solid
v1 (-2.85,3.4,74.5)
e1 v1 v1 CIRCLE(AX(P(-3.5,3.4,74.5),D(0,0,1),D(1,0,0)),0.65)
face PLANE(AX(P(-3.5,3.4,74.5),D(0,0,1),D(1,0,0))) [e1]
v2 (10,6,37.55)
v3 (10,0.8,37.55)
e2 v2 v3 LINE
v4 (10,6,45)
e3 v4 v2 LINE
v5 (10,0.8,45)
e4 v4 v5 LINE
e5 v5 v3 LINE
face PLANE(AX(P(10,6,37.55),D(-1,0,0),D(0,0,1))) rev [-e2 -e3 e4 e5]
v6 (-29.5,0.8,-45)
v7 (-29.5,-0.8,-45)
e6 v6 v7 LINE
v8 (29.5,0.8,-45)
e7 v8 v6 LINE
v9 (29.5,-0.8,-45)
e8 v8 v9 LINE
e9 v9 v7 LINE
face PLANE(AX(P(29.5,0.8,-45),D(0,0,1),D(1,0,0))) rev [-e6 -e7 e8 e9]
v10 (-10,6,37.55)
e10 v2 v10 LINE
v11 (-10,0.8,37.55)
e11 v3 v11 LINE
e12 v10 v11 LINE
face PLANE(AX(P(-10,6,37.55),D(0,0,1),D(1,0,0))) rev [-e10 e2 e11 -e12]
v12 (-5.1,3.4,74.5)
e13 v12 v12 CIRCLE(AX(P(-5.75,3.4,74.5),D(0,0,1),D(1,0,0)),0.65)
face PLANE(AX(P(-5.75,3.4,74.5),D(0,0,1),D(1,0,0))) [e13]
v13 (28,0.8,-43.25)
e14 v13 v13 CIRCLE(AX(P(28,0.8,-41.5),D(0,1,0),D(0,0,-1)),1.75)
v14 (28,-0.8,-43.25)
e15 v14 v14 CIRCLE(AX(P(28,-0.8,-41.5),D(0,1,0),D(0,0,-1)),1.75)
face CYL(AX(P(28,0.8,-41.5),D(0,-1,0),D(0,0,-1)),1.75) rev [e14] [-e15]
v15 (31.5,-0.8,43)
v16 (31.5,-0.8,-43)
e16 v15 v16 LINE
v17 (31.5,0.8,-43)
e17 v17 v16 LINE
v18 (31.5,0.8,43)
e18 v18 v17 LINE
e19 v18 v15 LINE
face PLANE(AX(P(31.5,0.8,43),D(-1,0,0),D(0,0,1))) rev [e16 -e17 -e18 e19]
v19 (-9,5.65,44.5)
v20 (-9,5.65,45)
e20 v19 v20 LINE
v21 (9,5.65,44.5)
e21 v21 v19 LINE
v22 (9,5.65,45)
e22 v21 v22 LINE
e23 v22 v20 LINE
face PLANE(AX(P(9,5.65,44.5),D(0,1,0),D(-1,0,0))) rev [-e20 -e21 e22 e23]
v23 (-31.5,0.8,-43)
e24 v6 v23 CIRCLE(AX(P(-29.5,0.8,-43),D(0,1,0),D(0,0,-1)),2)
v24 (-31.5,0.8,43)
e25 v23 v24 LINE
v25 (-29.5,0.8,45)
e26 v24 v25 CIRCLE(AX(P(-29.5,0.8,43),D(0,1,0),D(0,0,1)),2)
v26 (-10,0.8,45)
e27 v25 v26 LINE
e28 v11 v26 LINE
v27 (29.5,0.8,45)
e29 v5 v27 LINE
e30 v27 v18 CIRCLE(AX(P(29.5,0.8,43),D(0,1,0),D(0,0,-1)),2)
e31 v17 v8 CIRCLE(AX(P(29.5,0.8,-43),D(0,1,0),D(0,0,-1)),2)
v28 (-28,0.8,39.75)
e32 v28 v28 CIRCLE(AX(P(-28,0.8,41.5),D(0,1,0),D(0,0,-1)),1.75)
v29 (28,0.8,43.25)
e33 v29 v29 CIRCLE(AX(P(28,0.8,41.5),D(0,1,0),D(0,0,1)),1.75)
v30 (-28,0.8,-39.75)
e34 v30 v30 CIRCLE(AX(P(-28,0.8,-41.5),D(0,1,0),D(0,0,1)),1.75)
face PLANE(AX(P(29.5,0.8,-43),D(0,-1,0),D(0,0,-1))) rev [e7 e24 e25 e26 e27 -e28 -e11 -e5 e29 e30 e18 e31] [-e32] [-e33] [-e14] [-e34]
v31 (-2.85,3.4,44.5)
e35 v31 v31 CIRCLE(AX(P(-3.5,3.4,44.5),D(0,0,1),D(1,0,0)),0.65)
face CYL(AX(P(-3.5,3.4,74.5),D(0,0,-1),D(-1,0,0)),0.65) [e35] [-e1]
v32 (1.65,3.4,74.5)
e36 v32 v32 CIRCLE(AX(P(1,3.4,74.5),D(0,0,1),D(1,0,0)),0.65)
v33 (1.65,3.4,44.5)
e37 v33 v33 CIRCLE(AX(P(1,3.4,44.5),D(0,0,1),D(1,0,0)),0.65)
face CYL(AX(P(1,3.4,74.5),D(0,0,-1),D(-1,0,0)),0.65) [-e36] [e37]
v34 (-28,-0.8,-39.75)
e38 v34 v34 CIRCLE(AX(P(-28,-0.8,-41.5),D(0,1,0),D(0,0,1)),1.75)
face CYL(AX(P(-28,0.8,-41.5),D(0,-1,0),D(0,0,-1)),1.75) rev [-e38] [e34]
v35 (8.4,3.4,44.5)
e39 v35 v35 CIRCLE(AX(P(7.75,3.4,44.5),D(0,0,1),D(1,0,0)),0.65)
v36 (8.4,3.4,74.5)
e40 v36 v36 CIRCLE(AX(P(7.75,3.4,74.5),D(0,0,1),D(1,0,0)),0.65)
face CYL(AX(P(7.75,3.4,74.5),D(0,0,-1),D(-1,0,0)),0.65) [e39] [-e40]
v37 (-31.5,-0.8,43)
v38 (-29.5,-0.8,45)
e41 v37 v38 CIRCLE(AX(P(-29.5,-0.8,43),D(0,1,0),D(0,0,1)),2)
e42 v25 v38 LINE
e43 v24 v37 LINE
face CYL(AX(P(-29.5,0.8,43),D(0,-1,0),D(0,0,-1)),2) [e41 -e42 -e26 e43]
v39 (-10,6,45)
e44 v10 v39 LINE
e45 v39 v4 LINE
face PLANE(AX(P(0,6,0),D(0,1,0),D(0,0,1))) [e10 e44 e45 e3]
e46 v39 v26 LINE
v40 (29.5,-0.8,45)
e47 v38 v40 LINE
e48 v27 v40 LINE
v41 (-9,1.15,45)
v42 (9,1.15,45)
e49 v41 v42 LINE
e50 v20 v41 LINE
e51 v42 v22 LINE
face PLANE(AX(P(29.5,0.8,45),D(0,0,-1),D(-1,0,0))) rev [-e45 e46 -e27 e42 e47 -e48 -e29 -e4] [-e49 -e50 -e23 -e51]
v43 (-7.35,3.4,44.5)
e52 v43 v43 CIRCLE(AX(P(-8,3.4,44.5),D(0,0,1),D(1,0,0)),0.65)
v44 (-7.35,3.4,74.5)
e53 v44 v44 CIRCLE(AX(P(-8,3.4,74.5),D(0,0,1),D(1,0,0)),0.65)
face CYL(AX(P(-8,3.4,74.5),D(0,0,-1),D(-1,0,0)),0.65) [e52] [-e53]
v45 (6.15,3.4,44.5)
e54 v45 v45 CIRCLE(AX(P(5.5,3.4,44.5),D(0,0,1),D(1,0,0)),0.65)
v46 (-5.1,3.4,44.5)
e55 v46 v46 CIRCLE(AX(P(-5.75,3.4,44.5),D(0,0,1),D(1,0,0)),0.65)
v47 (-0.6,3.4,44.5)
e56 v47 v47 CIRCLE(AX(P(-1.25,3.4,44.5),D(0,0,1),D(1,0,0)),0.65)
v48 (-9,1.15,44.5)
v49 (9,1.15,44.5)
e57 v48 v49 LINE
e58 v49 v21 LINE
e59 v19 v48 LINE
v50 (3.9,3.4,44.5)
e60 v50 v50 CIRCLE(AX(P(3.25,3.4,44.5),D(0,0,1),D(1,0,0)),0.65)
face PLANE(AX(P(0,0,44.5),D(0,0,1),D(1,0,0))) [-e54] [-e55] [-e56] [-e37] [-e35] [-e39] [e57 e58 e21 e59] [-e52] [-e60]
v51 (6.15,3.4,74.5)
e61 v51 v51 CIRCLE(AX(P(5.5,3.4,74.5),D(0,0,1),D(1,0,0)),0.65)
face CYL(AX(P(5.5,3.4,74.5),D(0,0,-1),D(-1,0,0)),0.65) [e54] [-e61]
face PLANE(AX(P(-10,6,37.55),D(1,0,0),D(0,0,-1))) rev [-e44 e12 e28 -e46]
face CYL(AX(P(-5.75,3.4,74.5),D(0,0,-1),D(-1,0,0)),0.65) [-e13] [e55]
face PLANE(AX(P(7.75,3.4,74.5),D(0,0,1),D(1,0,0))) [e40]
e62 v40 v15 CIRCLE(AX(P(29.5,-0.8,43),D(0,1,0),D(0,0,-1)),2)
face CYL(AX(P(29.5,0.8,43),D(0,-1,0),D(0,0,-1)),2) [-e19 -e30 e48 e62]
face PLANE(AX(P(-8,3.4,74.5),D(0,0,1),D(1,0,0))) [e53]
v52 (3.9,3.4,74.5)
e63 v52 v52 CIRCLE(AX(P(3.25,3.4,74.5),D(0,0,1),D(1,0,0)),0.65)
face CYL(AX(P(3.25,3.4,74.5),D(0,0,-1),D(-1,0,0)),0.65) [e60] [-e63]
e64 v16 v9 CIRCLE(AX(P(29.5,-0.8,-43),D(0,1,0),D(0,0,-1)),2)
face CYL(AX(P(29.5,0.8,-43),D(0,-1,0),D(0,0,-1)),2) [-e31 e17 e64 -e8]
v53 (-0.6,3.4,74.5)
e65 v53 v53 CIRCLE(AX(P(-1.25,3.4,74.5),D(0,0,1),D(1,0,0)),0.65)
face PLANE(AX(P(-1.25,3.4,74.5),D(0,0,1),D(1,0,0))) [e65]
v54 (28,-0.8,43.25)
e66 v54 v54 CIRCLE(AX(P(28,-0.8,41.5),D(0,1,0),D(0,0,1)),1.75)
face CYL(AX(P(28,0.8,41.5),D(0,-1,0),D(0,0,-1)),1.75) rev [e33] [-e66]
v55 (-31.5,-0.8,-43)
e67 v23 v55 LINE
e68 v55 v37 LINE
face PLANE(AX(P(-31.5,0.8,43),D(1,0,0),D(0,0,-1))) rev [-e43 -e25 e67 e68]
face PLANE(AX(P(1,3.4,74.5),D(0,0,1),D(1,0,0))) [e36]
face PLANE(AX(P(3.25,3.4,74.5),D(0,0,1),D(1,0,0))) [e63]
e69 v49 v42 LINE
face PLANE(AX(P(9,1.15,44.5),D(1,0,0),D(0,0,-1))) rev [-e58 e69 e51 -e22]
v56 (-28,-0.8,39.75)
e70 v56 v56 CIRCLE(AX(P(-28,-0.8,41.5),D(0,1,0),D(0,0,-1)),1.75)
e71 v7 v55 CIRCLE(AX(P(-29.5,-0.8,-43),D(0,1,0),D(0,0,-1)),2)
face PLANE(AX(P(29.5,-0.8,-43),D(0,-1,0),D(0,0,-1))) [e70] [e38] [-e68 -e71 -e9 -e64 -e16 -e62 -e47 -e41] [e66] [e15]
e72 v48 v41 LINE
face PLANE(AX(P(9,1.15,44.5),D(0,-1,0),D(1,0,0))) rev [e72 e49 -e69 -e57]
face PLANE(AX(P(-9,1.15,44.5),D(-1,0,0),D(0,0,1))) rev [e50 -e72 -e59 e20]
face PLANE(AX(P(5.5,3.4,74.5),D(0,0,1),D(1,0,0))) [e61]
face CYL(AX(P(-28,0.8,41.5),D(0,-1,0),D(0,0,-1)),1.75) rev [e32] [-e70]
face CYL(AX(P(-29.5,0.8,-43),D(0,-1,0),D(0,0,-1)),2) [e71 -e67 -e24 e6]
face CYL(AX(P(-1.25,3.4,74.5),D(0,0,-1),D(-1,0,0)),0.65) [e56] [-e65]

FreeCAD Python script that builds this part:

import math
import FreeCAD as App
import Part
import Sketcher
Q = App.Units.Quantity


def add_polygon(sketch, points):
    """Adds a closed chain of lines whose ends are joined by coincident constraints."""
    first, n = sketch.GeometryCount, len(points)
    for a, b in zip(points, points[1:] + points[:1]):
        sketch.addGeometry(Part.LineSegment(App.Vector(*a, 0), App.Vector(*b, 0)), False)
    for i in range(n):
        sketch.addConstraint(Sketcher.Constraint("Coincident", first + i, 2, first + (i + 1) % n, 1))

doc = App.newDocument("Part")
body = doc.addObject("PartDesign::Body", "Body")

# Sketch on XZ plane
sketch1 = body.newObject("Sketcher::SketchObject", "Sketch")
sketch1.AttachmentSupport = (doc.getObject("XZ_Plane"), [""])
sketch1.MapMode = "FlatFace"
sketch1.addGeometry(Part.LineSegment(App.Vector(-29.5, 45, 0), App.Vector(29.5, 45, 0)), False)
sketch1.addGeometry(Part.ArcOfCircle(Part.Circle(App.Vector(29.5, 43, 0), App.Vector(0, 0, 1), 2), math.radians(0), math.radians(90)), False)
sketch1.addGeometry(Part.LineSegment(App.Vector(31.5, 43, 0), App.Vector(31.5, -43, 0)), False)
sketch1.addGeometry(Part.ArcOfCircle(Part.Circle(App.Vector(29.5, -43, 0), App.Vector(0, 0, 1), 2), math.radians(-90), math.radians(0)), False)
sketch1.addGeometry(Part.LineSegment(App.Vector(29.5, -45, 0), App.Vector(-29.5, -45, 0)), False)
sketch1.addGeometry(Part.ArcOfCircle(Part.Circle(App.Vector(-29.5, -43, 0), App.Vector(0, 0, 1), 2), math.radians(-180), math.radians(-90)), False)
sketch1.addGeometry(Part.LineSegment(App.Vector(-31.5, -43, 0), App.Vector(-31.5, 43, 0)), False)
sketch1.addGeometry(Part.ArcOfCircle(Part.Circle(App.Vector(-29.5, 43, 0), App.Vector(0, 0, 1), 2), math.radians(90), math.radians(180)), False)
sketch1.addGeometry(Part.Circle(App.Vector(28, 41.5, 0), App.Vector(0, 0, 1), 1.8), False)
sketch1.addGeometry(Part.Circle(App.Vector(-28, 41.5, 0), App.Vector(0, 0, 1), 1.8), False)
sketch1.addGeometry(Part.Circle(App.Vector(28, -41.5, 0), App.Vector(0, 0, 1), 1.8), False)
sketch1.addGeometry(Part.Circle(App.Vector(-28, -41.5, 0), App.Vector(0, 0, 1), 1.8), False)
sketch1.addConstraint(Sketcher.Constraint("Tangent", 0, 2, 1, 2))
sketch1.addConstraint(Sketcher.Constraint("Tangent", 1, 1, 2, 1))
sketch1.addConstraint(Sketcher.Constraint("Tangent", 2, 2, 3, 2))
sketch1.addConstraint(Sketcher.Constraint("Tangent", 3, 1, 4, 1))
sketch1.addConstraint(Sketcher.Constraint("Tangent", 4, 2, 5, 2))
sketch1.addConstraint(Sketcher.Constraint("Tangent", 5, 1, 6, 1))
sketch1.addConstraint(Sketcher.Constraint("Tangent", 6, 2, 7, 2))
sketch1.addConstraint(Sketcher.Constraint("Tangent", 7, 1, 0, 1))
sketch1.addConstraint(Sketcher.Constraint("Horizontal", 0))
sketch1.addConstraint(Sketcher.Constraint("Vertical", 2))
sketch1.addConstraint(Sketcher.Constraint("Horizontal", 4))
sketch1.addConstraint(Sketcher.Constraint("Vertical", 6))
sketch1.addConstraint(Sketcher.Constraint("Equal", 1, 3))
sketch1.addConstraint(Sketcher.Constraint("Equal", 3, 5))
sketch1.addConstraint(Sketcher.Constraint("Equal", 5, 7))
sketch1.addConstraint(Sketcher.Constraint("Equal", 8, 9))
sketch1.addConstraint(Sketcher.Constraint("Equal", 9, 10))
sketch1.addConstraint(Sketcher.Constraint("Equal", 10, 11))
sketch1.addConstraint(Sketcher.Constraint("Symmetric", 1, 3, 5, 3, -1, 1))
sketch1.addConstraint(Sketcher.Constraint("Symmetric", 9, 3, 10, 3, -1, 1))
sketch1.addConstraint(Sketcher.Constraint("Symmetric", 8, 3, 11, 3, -1, 1))
sketch1.addConstraint(Sketcher.Constraint("Symmetric", 8, 3, 9, 3, -2))
sketch1.addConstraint(Sketcher.Constraint("Radius", 1, Q("2 mm")))
sketch1.addConstraint(Sketcher.Constraint("Diameter", 8, Q("3.5 mm")))
sketch1.addConstraint(Sketcher.Constraint("DistanceX", 0, 1, 0, 2, Q("59 mm")))
sketch1.addConstraint(Sketcher.Constraint("DistanceY", 2, 2, 2, 1, Q("86 mm")))
sketch1.addConstraint(Sketcher.Constraint("DistanceX", -1, 1, 8, 3, Q("28 mm")))
sketch1.addConstraint(Sketcher.Constraint("DistanceY", 10, 3, 8, 3, Q("83 mm")))
pad1 = body.newObject("PartDesign::Pad", "Pad")
pad1.Profile = sketch1
pad1.Length = 1.6
pad1.Midplane = True

# Sketch on XZ plane
sketch2 = body.newObject("Sketcher::SketchObject", "Sketch001")
sketch2.AttachmentSupport = (doc.getObject("XZ_Plane"), [""])
sketch2.MapMode = "FlatFace"
sketch2.AttachmentOffset = App.Placement(App.Vector(0, 0, -0.8), App.Rotation())
add_polygon(sketch2, [(-10, 38), (-10, 45), (10, 45), (10, 38)])  # lines 0-3
sketch2.addConstraint(Sketcher.Constraint("Vertical", 0))
sketch2.addConstraint(Sketcher.Constraint("Horizontal", 1))
sketch2.addConstraint(Sketcher.Constraint("Vertical", 2))
sketch2.addConstraint(Sketcher.Constraint("Horizontal", 3))
sketch2.addConstraint(Sketcher.Constraint("DistanceX", 1, 1, 1, 2, Q("20 mm")))
sketch2.addConstraint(Sketcher.Constraint("DistanceX", 0, 2, -1, 1, Q("10 mm")))
sketch2.addConstraint(Sketcher.Constraint("DistanceY", -1, 1, 0, 2, Q("45 mm")))
sketch2.addConstraint(Sketcher.Constraint("DistanceY", 0, 1, 0, 2, Q("7.45 mm")))
pad2 = body.newObject("PartDesign::Pad", "Pad001")
pad2.Profile = sketch2
pad2.Length = 5.2
pad2.Reversed = True

# Sketch on XY plane
sketch3 = body.newObject("Sketcher::SketchObject", "Sketch002")
sketch3.AttachmentSupport = (doc.getObject("XY_Plane"), [""])
sketch3.MapMode = "FlatFace"
sketch3.AttachmentOffset = App.Placement(App.Vector(0, 0, 45), App.Rotation())
add_polygon(sketch3, [(-9, 5.7), (-9, 1.1), (9, 1.1), (9, 5.7)])  # lines 0-3
sketch3.addConstraint(Sketcher.Constraint("Vertical", 0))
sketch3.addConstraint(Sketcher.Constraint("Horizontal", 1))
sketch3.addConstraint(Sketcher.Constraint("Vertical", 2))
sketch3.addConstraint(Sketcher.Constraint("Horizontal", 3))
sketch3.addConstraint(Sketcher.Constraint("DistanceX", 1, 1, 1, 2, Q("18 mm")))
sketch3.addConstraint(Sketcher.Constraint("DistanceY", 0, 2, 0, 1, Q("4.5 mm")))
sketch3.addConstraint(Sketcher.Constraint("DistanceX", 0, 2, -1, 1, Q("9 mm")))
sketch3.addConstraint(Sketcher.Constraint("DistanceY", -1, 1, 0, 2, Q("1.15 mm")))
pocket1 = body.newObject("PartDesign::Pocket", "Pocket")
pocket1.Profile = sketch3
pocket1.Length = 0.5

# Sketch on XY plane
sketch4 = body.newObject("Sketcher::SketchObject", "Sketch003")
sketch4.AttachmentSupport = (doc.getObject("XY_Plane"), [""])
sketch4.MapMode = "FlatFace"
sketch4.AttachmentOffset = App.Placement(App.Vector(0, 0, 44.5), App.Rotation())
sketch4.addGeometry(Part.Circle(App.Vector(-8, 3.4, 0), App.Vector(0, 0, 1), 0.7), False)
sketch4.addGeometry(Part.Circle(App.Vector(-5.8, 3.4, 0), App.Vector(0, 0, 1), 0.7), False)
sketch4.addGeometry(Part.Circle(App.Vector(-3.5, 3.4, 0), App.Vector(0, 0, 1), 0.7), False)
sketch4.addGeometry(Part.Circle(App.Vector(-1.2, 3.4, 0), App.Vector(0, 0, 1), 0.7), False)
sketch4.addGeometry(Part.Circle(App.Vector(1, 3.4, 0), App.Vector(0, 0, 1), 0.7), False)
sketch4.addGeometry(Part.Circle(App.Vector(3.2, 3.4, 0), App.Vector(0, 0, 1), 0.7), False)
sketch4.addGeometry(Part.Circle(App.Vector(5.5, 3.4, 0), App.Vector(0, 0, 1), 0.7), False)
sketch4.addGeometry(Part.Circle(App.Vector(7.8, 3.4, 0), App.Vector(0, 0, 1), 0.7), False)
sketch4.addConstraint(Sketcher.Constraint("Equal", 0, 1))
sketch4.addConstraint(Sketcher.Constraint("Equal", 1, 2))
sketch4.addConstraint(Sketcher.Constraint("Equal", 2, 3))
sketch4.addConstraint(Sketcher.Constraint("Equal", 3, 4))
sketch4.addConstraint(Sketcher.Constraint("Equal", 4, 5))
sketch4.addConstraint(Sketcher.Constraint("Equal", 5, 6))
sketch4.addConstraint(Sketcher.Constraint("Equal", 6, 7))
sketch4.addConstraint(Sketcher.Constraint("Horizontal", 0, 3, 1, 3))
sketch4.addConstraint(Sketcher.Constraint("Horizontal", 1, 3, 2, 3))
sketch4.addConstraint(Sketcher.Constraint("Horizontal", 2, 3, 3, 3))
sketch4.addConstraint(Sketcher.Constraint("Horizontal", 3, 3, 4, 3))
sketch4.addConstraint(Sketcher.Constraint("Horizontal", 4, 3, 5, 3))
sketch4.addConstraint(Sketcher.Constraint("Horizontal", 5, 3, 6, 3))
sketch4.addConstraint(Sketcher.Constraint("Horizontal", 6, 3, 7, 3))
sketch4.addConstraint(Sketcher.Constraint("Diameter", 0, Q("1.3 mm")))
sketch4.addConstraint(Sketcher.Constraint("DistanceX", 0, 3, -1, 1, Q("8 mm")))
sketch4.addConstraint(Sketcher.Constraint("DistanceX", -1, 1, 4, 3, Q("1 mm")))
sketch4.addConstraint(Sketcher.Constraint("DistanceX", 1, 3, 5, 3, Q("9 mm")))
sketch4.addConstraint(Sketcher.Constraint("DistanceX", 2, 3, 6, 3, Q("9 mm")))
sketch4.addConstraint(Sketcher.Constraint("DistanceX", 3, 3, 7, 3, Q("9 mm")))
sketch4.addConstraint(Sketcher.Constraint("DistanceY", -1, 1, 0, 3, Q("3.4 mm")))
sketch4.addConstraint(Sketcher.Constraint("DistanceX", 2, 3, -1, 1, Q("3.5 mm")))
sketch4.addConstraint(Sketcher.Constraint("DistanceX", 1, 3, 3, 3, Q("4.5 mm")))
sketch4.addConstraint(Sketcher.Constraint("DistanceX", 1, 3, -1, 1, Q("5.75 mm")))
pad3 = body.newObject("PartDesign::Pad", "Pad002")
pad3.Profile = sketch4
pad3.Length = 30

doc.recompute()
